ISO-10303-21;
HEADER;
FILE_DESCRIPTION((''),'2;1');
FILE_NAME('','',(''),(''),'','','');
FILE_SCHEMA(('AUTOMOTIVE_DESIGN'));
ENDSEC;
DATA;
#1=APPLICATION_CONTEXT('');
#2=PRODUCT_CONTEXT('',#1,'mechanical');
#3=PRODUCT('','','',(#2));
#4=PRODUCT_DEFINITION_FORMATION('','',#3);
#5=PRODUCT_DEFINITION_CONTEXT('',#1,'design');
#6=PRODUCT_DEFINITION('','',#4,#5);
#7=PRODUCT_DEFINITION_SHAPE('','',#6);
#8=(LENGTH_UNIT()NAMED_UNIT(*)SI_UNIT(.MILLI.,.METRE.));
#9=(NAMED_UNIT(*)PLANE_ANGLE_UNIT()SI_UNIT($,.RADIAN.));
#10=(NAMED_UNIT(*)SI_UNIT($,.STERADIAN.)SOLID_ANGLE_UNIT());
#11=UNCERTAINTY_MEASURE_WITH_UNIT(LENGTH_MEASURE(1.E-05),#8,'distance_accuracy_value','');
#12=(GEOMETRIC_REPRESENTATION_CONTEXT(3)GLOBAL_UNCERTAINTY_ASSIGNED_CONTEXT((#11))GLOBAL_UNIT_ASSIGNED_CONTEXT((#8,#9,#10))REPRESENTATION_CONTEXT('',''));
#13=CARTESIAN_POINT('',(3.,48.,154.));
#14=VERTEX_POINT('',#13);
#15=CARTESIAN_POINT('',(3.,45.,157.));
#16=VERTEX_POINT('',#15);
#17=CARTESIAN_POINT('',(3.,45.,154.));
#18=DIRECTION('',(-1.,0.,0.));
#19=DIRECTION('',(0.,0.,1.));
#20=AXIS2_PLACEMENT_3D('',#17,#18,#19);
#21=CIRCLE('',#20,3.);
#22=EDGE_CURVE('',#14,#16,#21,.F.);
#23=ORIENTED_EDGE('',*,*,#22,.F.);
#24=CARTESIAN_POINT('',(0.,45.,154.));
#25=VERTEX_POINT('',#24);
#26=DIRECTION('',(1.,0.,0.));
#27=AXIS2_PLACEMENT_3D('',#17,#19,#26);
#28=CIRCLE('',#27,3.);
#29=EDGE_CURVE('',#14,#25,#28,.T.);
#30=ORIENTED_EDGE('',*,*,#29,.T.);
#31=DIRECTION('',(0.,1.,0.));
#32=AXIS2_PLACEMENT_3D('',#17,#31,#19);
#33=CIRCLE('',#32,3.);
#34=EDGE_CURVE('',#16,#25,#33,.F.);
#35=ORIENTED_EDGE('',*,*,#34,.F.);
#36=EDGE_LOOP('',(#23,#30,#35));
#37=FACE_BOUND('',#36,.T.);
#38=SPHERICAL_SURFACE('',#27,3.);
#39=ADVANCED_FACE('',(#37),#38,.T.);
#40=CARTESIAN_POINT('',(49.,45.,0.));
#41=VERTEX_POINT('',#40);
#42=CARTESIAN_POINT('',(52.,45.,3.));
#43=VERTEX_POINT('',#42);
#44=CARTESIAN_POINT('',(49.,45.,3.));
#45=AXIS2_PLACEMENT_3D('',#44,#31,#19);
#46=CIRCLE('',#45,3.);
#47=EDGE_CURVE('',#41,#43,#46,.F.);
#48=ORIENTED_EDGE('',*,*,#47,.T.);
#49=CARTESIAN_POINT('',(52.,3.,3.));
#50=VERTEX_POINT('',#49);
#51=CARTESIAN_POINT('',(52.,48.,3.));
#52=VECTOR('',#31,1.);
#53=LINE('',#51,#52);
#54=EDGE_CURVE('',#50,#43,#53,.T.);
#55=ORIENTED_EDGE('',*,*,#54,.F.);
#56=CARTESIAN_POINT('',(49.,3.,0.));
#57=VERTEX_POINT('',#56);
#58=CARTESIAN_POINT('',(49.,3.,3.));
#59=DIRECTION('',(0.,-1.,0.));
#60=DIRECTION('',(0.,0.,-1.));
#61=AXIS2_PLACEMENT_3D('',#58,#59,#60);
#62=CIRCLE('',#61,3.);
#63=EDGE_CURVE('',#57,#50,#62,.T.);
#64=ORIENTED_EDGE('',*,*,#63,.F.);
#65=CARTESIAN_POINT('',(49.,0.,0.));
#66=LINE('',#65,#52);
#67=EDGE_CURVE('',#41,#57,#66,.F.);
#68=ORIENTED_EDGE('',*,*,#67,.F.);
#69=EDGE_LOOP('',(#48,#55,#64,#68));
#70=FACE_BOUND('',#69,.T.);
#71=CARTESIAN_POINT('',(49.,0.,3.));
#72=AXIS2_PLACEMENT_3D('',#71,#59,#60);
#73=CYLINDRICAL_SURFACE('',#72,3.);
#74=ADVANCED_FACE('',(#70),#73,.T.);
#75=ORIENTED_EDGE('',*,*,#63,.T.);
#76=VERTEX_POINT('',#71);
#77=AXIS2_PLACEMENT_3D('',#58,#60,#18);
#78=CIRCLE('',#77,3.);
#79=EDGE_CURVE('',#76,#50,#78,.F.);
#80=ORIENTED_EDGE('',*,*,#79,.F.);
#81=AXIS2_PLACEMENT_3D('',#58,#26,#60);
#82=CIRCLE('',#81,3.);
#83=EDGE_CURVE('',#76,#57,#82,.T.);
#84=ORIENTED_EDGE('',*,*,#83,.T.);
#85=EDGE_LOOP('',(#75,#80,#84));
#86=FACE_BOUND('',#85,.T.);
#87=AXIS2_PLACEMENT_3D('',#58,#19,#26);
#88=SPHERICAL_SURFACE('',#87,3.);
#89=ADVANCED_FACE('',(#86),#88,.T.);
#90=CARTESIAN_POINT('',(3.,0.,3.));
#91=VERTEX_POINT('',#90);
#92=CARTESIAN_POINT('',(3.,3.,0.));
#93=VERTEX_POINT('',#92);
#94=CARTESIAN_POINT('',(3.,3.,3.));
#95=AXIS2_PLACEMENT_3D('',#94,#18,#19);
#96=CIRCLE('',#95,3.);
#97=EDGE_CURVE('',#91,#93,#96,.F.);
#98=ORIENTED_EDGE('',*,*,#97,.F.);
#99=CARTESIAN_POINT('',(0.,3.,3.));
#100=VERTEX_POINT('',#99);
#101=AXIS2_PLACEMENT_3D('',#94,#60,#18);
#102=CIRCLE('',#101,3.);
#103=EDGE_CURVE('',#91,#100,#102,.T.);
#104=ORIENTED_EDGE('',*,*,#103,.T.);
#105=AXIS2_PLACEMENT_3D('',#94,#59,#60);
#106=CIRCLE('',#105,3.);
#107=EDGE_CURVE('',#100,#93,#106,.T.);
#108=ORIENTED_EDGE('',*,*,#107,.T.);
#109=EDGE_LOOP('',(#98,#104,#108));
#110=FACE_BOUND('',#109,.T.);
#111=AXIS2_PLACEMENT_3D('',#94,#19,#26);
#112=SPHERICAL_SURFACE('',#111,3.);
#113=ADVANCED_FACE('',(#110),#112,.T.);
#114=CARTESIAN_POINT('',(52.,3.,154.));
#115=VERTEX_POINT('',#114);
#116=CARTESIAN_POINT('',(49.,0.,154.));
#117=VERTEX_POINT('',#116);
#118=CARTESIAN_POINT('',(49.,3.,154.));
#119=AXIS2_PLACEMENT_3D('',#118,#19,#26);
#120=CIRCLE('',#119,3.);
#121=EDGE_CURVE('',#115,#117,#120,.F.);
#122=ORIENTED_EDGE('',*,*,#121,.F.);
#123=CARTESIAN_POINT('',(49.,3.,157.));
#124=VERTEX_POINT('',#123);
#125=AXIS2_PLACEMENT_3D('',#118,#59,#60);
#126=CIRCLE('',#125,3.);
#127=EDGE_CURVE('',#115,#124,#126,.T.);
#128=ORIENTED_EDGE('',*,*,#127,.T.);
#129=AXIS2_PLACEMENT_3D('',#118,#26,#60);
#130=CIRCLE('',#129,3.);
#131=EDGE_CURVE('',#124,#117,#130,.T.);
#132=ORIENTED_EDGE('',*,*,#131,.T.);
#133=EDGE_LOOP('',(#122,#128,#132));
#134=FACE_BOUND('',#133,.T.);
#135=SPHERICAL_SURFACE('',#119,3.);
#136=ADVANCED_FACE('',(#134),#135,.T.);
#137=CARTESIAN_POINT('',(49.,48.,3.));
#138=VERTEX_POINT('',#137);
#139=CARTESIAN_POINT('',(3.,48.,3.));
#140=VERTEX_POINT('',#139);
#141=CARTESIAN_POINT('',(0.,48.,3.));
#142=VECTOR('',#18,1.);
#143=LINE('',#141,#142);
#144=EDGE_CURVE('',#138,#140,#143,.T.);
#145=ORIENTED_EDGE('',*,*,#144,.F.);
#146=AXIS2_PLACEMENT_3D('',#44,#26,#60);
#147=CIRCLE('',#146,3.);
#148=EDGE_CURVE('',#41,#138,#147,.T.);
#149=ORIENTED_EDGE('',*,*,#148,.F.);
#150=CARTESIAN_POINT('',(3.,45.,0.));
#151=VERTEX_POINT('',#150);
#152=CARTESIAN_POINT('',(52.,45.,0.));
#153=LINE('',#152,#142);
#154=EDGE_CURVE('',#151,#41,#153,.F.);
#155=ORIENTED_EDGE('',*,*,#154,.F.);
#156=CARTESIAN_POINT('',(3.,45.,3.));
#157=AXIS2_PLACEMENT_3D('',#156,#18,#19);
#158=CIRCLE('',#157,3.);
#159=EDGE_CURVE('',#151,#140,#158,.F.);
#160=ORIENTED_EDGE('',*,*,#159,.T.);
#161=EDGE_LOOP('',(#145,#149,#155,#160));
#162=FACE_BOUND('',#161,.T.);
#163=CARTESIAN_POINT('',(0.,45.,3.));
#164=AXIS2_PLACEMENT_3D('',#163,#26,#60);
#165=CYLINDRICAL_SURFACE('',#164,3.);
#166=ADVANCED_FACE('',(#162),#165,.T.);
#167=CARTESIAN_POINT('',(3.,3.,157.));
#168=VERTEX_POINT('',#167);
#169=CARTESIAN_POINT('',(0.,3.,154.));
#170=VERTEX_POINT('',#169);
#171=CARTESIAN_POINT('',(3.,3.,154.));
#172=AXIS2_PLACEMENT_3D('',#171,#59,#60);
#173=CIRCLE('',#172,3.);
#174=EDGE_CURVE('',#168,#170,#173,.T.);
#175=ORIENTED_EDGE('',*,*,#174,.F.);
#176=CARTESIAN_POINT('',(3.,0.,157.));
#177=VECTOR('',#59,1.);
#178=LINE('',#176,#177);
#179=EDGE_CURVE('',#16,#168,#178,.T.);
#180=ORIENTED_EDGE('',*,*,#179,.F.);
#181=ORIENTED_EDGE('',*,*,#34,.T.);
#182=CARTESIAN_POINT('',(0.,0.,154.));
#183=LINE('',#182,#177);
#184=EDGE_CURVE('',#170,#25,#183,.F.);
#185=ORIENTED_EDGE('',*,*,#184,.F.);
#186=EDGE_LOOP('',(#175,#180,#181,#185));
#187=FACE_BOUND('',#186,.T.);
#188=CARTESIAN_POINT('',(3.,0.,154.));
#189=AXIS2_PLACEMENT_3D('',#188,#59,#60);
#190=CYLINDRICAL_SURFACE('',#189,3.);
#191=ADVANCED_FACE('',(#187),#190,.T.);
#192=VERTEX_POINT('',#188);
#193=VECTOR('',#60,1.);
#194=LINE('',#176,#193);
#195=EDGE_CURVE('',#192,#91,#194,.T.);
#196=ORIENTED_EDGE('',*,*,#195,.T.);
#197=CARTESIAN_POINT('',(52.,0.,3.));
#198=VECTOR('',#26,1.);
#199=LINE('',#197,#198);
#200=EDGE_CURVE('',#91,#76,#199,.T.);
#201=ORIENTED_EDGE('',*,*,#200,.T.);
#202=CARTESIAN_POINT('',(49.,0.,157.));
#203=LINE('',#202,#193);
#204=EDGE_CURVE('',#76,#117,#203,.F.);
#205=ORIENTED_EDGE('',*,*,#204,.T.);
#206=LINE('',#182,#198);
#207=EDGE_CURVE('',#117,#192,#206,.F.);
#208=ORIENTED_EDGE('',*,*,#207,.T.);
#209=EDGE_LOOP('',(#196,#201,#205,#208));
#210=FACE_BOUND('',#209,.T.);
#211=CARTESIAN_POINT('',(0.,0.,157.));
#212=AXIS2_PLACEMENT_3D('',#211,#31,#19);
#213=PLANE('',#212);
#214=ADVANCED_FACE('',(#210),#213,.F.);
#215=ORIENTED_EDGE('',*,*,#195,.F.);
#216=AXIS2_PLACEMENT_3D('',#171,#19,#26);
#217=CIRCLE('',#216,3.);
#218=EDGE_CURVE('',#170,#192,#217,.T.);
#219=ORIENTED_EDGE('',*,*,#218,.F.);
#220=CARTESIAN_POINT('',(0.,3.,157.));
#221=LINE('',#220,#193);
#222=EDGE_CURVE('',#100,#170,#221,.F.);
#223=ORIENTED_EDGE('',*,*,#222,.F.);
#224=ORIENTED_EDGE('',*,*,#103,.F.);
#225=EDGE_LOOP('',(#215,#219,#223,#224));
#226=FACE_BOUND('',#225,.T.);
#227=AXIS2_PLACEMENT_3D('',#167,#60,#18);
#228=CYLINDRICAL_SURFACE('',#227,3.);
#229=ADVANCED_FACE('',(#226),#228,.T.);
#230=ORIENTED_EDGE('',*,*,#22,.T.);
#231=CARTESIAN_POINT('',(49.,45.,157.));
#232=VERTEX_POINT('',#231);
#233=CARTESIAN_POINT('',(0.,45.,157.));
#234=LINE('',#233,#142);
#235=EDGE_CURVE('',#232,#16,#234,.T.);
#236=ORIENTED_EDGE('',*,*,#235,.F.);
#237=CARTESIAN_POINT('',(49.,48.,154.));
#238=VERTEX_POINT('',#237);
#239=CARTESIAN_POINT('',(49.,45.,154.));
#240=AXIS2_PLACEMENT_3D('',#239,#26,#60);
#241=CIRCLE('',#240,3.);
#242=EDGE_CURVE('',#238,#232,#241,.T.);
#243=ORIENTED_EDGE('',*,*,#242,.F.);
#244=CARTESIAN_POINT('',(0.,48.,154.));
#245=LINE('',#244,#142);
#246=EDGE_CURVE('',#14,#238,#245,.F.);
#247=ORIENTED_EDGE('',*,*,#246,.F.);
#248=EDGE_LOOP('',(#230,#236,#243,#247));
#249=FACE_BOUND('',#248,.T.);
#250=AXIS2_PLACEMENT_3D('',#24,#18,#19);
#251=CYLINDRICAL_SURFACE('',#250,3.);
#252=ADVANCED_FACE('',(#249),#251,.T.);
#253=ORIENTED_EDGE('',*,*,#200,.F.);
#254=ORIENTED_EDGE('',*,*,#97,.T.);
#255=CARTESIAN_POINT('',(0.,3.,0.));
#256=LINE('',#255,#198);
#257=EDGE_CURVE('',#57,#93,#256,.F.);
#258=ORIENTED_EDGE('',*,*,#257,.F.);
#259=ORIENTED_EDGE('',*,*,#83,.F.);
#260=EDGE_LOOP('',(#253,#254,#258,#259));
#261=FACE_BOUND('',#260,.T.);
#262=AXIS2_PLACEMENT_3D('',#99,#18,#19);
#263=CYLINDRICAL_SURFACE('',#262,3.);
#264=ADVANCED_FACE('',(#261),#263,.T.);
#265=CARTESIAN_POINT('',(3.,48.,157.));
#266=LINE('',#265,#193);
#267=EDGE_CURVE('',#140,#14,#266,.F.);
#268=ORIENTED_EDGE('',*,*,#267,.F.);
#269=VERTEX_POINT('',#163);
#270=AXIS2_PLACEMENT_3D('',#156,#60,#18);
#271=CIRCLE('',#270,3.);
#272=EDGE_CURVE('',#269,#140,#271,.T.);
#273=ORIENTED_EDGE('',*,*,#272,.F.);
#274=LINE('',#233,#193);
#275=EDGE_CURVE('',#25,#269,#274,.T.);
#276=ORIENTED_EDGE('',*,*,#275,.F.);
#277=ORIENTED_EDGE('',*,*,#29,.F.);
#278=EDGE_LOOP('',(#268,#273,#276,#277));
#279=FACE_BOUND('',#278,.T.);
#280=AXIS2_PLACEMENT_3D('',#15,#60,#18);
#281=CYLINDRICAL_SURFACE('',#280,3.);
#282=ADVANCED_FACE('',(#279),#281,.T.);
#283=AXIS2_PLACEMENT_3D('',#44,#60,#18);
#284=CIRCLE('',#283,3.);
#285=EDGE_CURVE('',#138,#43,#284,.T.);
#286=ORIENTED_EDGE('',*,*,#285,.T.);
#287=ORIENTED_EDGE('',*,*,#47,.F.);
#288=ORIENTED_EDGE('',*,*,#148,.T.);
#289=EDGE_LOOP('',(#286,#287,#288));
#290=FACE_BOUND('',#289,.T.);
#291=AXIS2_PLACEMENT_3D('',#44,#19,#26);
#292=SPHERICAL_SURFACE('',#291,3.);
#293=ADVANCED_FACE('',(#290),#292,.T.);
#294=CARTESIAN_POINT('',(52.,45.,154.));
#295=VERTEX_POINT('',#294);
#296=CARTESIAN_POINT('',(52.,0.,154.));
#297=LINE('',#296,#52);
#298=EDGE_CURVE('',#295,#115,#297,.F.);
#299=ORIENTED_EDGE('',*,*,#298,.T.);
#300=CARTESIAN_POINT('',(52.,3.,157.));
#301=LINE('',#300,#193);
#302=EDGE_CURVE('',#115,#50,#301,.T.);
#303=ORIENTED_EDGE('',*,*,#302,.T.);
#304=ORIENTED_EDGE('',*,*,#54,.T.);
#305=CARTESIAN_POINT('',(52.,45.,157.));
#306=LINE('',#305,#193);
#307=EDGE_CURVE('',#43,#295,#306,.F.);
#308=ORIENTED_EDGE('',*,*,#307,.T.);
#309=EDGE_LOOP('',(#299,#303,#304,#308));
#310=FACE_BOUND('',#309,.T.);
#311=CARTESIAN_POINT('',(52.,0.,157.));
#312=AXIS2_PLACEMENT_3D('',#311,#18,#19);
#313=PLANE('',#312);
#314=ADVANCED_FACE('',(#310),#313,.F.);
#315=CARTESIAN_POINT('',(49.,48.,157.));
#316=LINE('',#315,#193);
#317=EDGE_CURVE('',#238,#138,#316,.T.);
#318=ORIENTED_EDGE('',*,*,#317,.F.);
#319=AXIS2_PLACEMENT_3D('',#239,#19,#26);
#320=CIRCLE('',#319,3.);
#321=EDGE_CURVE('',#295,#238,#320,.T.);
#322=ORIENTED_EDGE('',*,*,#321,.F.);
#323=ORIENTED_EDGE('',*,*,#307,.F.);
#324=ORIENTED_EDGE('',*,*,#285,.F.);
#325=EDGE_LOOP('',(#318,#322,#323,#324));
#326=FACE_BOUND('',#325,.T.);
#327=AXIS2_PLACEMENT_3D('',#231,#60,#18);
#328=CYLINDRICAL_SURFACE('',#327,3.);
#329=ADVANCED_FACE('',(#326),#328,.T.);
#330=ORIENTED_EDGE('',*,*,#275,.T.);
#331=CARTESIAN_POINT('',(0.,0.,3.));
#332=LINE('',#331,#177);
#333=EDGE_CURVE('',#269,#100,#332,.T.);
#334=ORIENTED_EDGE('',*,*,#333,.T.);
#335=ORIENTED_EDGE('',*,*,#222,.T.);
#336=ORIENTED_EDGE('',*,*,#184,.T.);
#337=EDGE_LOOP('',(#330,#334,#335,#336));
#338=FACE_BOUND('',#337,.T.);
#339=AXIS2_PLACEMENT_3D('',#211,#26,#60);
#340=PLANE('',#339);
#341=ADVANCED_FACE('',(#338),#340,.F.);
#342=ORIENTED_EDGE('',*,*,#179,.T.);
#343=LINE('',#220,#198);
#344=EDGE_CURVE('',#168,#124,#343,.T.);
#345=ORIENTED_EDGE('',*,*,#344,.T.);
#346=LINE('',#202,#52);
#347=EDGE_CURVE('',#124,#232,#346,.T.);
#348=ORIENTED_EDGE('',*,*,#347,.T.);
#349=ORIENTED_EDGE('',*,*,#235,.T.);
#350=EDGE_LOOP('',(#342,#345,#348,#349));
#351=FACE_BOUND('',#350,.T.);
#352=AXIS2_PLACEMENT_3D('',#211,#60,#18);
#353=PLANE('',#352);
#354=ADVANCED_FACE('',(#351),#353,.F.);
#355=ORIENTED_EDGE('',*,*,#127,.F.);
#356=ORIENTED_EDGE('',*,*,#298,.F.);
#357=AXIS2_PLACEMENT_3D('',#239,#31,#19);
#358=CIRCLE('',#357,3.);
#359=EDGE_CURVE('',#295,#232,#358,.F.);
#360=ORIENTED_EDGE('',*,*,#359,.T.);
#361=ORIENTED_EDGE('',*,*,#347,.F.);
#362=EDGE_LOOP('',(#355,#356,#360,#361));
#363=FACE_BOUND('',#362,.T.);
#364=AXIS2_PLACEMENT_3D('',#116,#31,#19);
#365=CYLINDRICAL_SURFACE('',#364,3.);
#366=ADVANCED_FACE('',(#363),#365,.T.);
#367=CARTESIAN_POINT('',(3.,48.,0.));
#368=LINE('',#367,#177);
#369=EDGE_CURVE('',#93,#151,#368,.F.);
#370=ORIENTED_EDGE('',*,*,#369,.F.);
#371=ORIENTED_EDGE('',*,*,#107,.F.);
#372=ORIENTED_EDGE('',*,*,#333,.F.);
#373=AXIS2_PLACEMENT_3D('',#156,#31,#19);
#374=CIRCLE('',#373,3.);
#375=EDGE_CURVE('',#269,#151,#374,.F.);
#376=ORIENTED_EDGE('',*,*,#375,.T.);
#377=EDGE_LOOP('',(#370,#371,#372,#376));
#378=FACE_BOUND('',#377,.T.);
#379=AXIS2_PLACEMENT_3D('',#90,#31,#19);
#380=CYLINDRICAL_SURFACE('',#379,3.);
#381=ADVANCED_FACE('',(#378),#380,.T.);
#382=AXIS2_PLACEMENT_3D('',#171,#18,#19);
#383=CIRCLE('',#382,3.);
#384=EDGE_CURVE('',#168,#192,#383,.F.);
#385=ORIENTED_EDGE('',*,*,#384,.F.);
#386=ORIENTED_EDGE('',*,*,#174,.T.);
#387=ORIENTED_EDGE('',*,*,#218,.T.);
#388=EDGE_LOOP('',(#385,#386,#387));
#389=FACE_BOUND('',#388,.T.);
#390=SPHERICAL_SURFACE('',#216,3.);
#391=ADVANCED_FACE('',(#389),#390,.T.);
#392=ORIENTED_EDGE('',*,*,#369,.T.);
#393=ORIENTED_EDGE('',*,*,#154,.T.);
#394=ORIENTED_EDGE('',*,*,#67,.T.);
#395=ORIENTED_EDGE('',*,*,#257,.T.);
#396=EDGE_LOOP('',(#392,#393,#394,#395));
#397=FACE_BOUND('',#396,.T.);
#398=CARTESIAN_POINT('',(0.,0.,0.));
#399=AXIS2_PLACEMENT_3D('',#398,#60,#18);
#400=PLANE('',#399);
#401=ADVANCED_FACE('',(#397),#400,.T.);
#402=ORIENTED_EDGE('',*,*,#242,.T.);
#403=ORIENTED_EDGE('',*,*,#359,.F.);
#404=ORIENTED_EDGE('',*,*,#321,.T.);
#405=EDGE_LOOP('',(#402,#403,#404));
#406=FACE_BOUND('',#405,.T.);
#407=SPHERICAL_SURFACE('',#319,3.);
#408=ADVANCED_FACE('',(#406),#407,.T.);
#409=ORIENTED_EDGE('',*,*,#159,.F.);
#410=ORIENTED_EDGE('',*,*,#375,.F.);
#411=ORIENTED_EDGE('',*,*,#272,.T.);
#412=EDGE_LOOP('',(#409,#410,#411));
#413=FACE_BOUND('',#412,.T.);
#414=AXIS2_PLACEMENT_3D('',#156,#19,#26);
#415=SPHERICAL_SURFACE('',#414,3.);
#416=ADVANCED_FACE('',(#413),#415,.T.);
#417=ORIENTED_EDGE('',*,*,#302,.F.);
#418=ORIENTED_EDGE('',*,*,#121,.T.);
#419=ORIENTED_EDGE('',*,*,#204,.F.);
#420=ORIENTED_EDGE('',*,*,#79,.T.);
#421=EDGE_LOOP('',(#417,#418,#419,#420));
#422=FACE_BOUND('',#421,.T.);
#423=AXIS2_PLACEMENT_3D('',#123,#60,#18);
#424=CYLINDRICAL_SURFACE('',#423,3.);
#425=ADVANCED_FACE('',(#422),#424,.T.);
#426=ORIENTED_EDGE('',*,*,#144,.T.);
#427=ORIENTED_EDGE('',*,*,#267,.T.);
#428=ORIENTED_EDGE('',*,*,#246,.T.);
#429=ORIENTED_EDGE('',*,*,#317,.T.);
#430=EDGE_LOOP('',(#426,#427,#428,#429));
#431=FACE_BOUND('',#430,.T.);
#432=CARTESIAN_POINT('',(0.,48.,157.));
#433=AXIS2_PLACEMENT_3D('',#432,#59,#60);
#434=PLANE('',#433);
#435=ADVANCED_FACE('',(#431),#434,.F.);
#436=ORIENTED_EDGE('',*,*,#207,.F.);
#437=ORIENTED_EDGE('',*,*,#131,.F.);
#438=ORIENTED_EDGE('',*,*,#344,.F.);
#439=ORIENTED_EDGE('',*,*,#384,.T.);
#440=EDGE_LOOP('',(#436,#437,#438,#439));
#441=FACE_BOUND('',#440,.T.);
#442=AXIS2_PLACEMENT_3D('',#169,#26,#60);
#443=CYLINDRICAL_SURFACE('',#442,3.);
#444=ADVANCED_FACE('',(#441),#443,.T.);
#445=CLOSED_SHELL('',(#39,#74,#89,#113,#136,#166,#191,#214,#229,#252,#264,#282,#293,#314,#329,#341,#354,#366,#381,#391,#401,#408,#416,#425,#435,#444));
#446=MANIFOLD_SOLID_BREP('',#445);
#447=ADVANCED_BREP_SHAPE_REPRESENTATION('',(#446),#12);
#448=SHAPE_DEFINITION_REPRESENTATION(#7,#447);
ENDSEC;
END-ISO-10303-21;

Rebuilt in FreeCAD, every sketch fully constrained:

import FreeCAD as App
import Part
import Sketcher
Q = App.Units.Quantity


def add_polygon(sketch, points):
    """Adds a closed chain of lines whose ends are joined by coincident constraints."""
    first, n = sketch.GeometryCount, len(points)
    for a, b in zip(points, points[1:] + points[:1]):
        sketch.addGeometry(Part.LineSegment(App.Vector(*a, 0), App.Vector(*b, 0)), False)
    for i in range(n):
        sketch.addConstraint(Sketcher.Constraint("Coincident", first + i, 2, first + (i + 1) % n, 1))

doc = App.newDocument("Part")
params = doc.addObject("Spreadsheet::Sheet", "Params")
for row, (alias, value) in enumerate([
    ("sketch1_width", "52 mm"),
    ("sketch1_height", "48 mm"),
    ("pad1_length", "157 mm"),
    ("fillet_radius", "3 mm"),
], start=1):
    params.set(f"A{row}", alias)
    params.set(f"B{row}", "=" + value)
    params.setAlias(f"B{row}", alias)

body = doc.addObject("PartDesign::Body", "Body")

# Sketch on XY plane
sketch1 = body.newObject("Sketcher::SketchObject", "Sketch")
sketch1.AttachmentSupport = (doc.getObject("XY_Plane"), [""])
sketch1.MapMode = "FlatFace"
add_polygon(sketch1, [(0, 48), (0, 0), (52, 0), (52, 48)])  # lines 0-3
sketch1.addConstraint(Sketcher.Constraint("Vertical", 0))
sketch1.addConstraint(Sketcher.Constraint("Horizontal", 1))
sketch1.addConstraint(Sketcher.Constraint("Vertical", 2))
sketch1.addConstraint(Sketcher.Constraint("Horizontal", 3))
sketch1.addConstraint(Sketcher.Constraint("Coincident", 0, 2, -1, 1))
sketch1.addConstraint(Sketcher.Constraint("DistanceX", 1, 1, 1, 2, Q("52 mm")))
sketch1.addConstraint(Sketcher.Constraint("DistanceY", 0, 2, 0, 1, Q("48 mm")))
sketch1.setExpression("Constraints[9]", "Params.sketch1_width")
sketch1.setExpression("Constraints[10]", "Params.sketch1_height")
pad1 = body.newObject("PartDesign::Pad", "Pad")
pad1.Profile = sketch1
pad1.setExpression("Length", "Params.pad1_length")
doc.recompute()

fillet = body.newObject("PartDesign::Fillet", "Fillet")
fillet.Base = (pad1, ["Edge1"])
fillet.UseAllEdges = True
fillet.setExpression("Radius", "Params.fillet_radius")

doc.recompute()
